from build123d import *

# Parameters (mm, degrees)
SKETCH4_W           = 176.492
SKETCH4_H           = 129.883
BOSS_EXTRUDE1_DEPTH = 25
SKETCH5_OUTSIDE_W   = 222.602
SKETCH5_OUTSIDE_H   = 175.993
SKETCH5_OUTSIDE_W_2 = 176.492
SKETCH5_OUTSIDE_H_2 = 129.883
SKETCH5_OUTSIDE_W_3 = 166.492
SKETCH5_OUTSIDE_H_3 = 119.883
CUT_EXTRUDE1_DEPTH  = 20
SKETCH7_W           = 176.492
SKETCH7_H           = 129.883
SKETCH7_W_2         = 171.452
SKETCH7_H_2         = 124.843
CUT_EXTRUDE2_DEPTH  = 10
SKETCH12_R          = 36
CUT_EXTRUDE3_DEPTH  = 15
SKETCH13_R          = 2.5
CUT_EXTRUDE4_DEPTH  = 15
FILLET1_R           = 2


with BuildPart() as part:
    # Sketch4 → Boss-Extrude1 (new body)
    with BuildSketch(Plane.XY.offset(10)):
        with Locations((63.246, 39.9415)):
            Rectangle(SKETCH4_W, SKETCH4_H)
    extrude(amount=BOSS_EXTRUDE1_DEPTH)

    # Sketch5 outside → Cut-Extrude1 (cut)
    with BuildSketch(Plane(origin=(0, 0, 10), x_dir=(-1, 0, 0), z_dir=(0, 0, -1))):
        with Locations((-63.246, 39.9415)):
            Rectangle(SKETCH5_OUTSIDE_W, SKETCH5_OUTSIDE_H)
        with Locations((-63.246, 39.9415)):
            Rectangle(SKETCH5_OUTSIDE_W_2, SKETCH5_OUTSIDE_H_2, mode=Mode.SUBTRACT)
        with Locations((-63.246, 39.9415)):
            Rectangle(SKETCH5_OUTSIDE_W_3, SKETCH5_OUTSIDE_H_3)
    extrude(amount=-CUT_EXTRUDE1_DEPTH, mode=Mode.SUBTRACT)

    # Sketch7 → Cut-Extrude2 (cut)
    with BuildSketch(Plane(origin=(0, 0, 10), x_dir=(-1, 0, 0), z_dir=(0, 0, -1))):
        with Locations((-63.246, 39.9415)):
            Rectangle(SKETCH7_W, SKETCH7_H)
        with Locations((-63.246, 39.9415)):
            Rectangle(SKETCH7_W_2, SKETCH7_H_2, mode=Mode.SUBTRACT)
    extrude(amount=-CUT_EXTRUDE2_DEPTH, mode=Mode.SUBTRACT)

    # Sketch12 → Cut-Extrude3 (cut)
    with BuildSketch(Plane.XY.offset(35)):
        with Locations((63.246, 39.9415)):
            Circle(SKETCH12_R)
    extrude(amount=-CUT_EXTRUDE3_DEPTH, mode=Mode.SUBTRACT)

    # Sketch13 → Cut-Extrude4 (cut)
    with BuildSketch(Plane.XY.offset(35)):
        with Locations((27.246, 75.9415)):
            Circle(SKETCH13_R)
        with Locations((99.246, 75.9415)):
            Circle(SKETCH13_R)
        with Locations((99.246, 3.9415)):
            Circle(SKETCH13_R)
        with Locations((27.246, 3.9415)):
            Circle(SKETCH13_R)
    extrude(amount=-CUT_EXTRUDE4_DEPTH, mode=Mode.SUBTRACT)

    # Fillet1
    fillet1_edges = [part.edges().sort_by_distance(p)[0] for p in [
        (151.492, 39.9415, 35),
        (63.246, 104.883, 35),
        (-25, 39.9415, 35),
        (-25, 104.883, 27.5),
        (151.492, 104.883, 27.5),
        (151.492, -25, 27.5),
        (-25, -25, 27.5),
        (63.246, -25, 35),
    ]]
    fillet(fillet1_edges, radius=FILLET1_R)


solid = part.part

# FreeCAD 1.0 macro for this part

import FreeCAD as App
import Part
import Sketcher
from FreeCAD import Vector


def edges_at(feature, points):
    """Names of the edges that pass closest to the given points."""
    edges = feature.Shape.Edges
    near = lambda p: min(range(len(edges)), key=lambda i: edges[i].distToShape(Part.Vertex(*p))[0])
    return sorted({f"Edge{near(p) + 1}" for p in points})


def add_polygon(sketch, points):
    """Adds a closed chain of lines whose ends are joined by coincident constraints."""
    first, n = sketch.GeometryCount, len(points)
    for a, b in zip(points, points[1:] + points[:1]):
        sketch.addGeometry(Part.LineSegment(App.Vector(*a, 0), App.Vector(*b, 0)), False)
    for i in range(n):
        sketch.addConstraint(Sketcher.Constraint("Coincident", first + i, 2, first + (i + 1) % n, 1))

doc = App.newDocument("Part")
body = doc.addObject("PartDesign::Body", "Body")

sketch1 = body.newObject("Sketcher::SketchObject", "Sketch")
sketch1.AttachmentSupport = (doc.getObject("XY_Plane"), [""])
sketch1.MapMode = "FlatFace"
sketch1.AttachmentOffset = App.Placement(Vector(0, 0, 10), App.Rotation())
add_polygon(sketch1, [(-25, 105), (-25, -25), (151, -25), (151, 105)])
sketch1.addConstraint([
    Sketcher.Constraint("Vertical", 0),
    Sketcher.Constraint("Horizontal", 1),
    Sketcher.Constraint("Vertical", 2),
    Sketcher.Constraint("Horizontal", 3),
    Sketcher.Constraint("DistanceX", 0, 2, -1, 1, 25.0),
    Sketcher.Constraint("DistanceY", 0, 2, -1, 1, 25.0),
    Sketcher.Constraint("DistanceX", 1, 1, 1, 2, 176.492),
    Sketcher.Constraint("DistanceY", 0, 2, 0, 1, 129.883),
])
pad1 = body.newObject("PartDesign::Pad", "Pad")
pad1.Profile = sketch1
pad1.Length = 25

sketch2 = body.newObject("Sketcher::SketchObject", "Sketch001")
sketch2.AttachmentSupport = (doc.getObject("XY_Plane"), [""])
sketch2.MapMode = "FlatFace"
sketch2.AttachmentOffset = App.Placement(Vector(0, 0, 10), App.Rotation())
add_polygon(sketch2, [(175, 128), (175, -48), (-48, -48), (-48, 128)])
add_polygon(sketch2, [(-25, -25), (151, -25), (151, 105), (-25, 105)])
add_polygon(sketch2, [(146, 100), (146, -20), (-20, -20), (-20, 100)])
sketch2.addConstraint([
    Sketcher.Constraint("Vertical", 0),
    Sketcher.Constraint("Horizontal", 1),
    Sketcher.Constraint("Vertical", 2),
    Sketcher.Constraint("Horizontal", 3),
    Sketcher.Constraint("Horizontal", 4),
    Sketcher.Constraint("Vertical", 5),
    Sketcher.Constraint("Horizontal", 6),
    Sketcher.Constraint("Vertical", 7),
    Sketcher.Constraint("Vertical", 8),
    Sketcher.Constraint("Horizontal", 9),
    Sketcher.Constraint("Vertical", 10),
    Sketcher.Constraint("Horizontal", 11),
    Sketcher.Constraint("DistanceY", 4, 2, -1, 1, 25.0),
    Sketcher.Constraint("DistanceX", 6, 2, -1, 1, 25.0),
    Sketcher.Constraint("DistanceY", 8, 2, -1, 1, 20.0),
    Sketcher.Constraint("DistanceX", 9, 2, -1, 1, 20.0),
    Sketcher.Constraint("DistanceX", 8, 2, 4, 2, 5.0),
    Sketcher.Constraint("DistanceY", 10, 2, 6, 2, 5.0),
    Sketcher.Constraint("DistanceX", 1, 2, 1, 1, 222.602),
    Sketcher.Constraint("DistanceX", 4, 1, 4, 2, 176.492),
    Sketcher.Constraint("DistanceY", 0, 2, 0, 1, 175.993),
    Sketcher.Constraint("DistanceY", 5, 1, 5, 2, 129.883),
    Sketcher.Constraint("DistanceX", -1, 1, 0, 2, 174.547),
    Sketcher.Constraint("DistanceY", 0, 2, -1, 1, 48.055),
])
pocket1 = body.newObject("PartDesign::Pocket", "Pocket")
pocket1.Profile = sketch2
pocket1.Length = 20
pocket1.Reversed = True

sketch3 = body.newObject("Sketcher::SketchObject", "Sketch002")
sketch3.AttachmentSupport = (doc.getObject("XY_Plane"), [""])
sketch3.MapMode = "FlatFace"
sketch3.AttachmentOffset = App.Placement(Vector(0, 0, 10), App.Rotation())
add_polygon(sketch3, [(151, 105), (151, -25), (-25, -25), (-25, 105)])
add_polygon(sketch3, [(-22, -22), (149, -22), (149, 102), (-22, 102)])
sketch3.addConstraint([
    Sketcher.Constraint("Vertical", 0),
    Sketcher.Constraint("Horizontal", 1),
    Sketcher.Constraint("Vertical", 2),
    Sketcher.Constraint("Horizontal", 3),
    Sketcher.Constraint("Horizontal", 4),
    Sketcher.Constraint("Vertical", 5),
    Sketcher.Constraint("Horizontal", 6),
    Sketcher.Constraint("Vertical", 7),
    Sketcher.Constraint("DistanceY", 0, 2, -1, 1, 25.0),
    Sketcher.Constraint("DistanceX", 1, 2, -1, 1, 25.0),
    Sketcher.Constraint("DistanceX", 1, 2, 1, 1, 176.492),
    Sketcher.Constraint("DistanceX", 4, 1, 4, 2, 171.452),
    Sketcher.Constraint("DistanceY", 0, 2, 0, 1, 129.883),
    Sketcher.Constraint("DistanceY", 5, 1, 5, 2, 124.843),
    Sketcher.Constraint("DistanceY", 4, 2, -1, 1, 22.48),
    Sketcher.Constraint("DistanceX", 6, 2, -1, 1, 22.48),
])
pocket2 = body.newObject("PartDesign::Pocket", "Pocket001")
pocket2.Profile = sketch3
pocket2.Length = 10
pocket2.Reversed = True

sketch4 = body.newObject("Sketcher::SketchObject", "Sketch003")
sketch4.AttachmentSupport = (doc.getObject("XY_Plane"), [""])
sketch4.MapMode = "FlatFace"
sketch4.AttachmentOffset = App.Placement(Vector(0, 0, 35), App.Rotation())
sketch4.addGeometry(Part.Circle(Vector(63, 40, 0), Vector(0, 0, 1), 36), False)
sketch4.addConstraint([
    Sketcher.Constraint("Diameter", 0, 72.0),
    Sketcher.Constraint("DistanceX", -1, 1, 0, 3, 63.246),
    Sketcher.Constraint("DistanceY", -1, 1, 0, 3, 39.9415),
])
pocket3 = body.newObject("PartDesign::Pocket", "Pocket002")
pocket3.Profile = sketch4
pocket3.Length = 15

sketch5 = body.newObject("Sketcher::SketchObject", "Sketch004")
sketch5.AttachmentSupport = (doc.getObject("XY_Plane"), [""])
sketch5.MapMode = "FlatFace"
sketch5.AttachmentOffset = App.Placement(Vector(0, 0, 35), App.Rotation())
sketch5.addGeometry([
    Part.Circle(Vector(27.2, 75.9, 0), Vector(0, 0, 1), 2.5),
    Part.Circle(Vector(99.2, 75.9, 0), Vector(0, 0, 1), 2.5),
    Part.Circle(Vector(99.2, 3.9, 0), Vector(0, 0, 1), 2.5),
    Part.Circle(Vector(27.2, 3.9, 0), Vector(0, 0, 1), 2.5),
], False)
sketch5.addConstraint([
    Sketcher.Constraint("Equal", 0, 1),
    Sketcher.Constraint("Equal", 1, 2),
    Sketcher.Constraint("Equal", 2, 3),
    Sketcher.Constraint("Horizontal", 0, 3, 1, 3),
    Sketcher.Constraint("Horizontal", 2, 3, 3, 3),
    Sketcher.Constraint("Vertical", 1, 3, 2, 3),
    Sketcher.Constraint("Vertical", 0, 3, 3, 3),
    Sketcher.Constraint("Diameter", 0, 5.0),
    Sketcher.Constraint("DistanceX", 0, 3, 1, 3, 72.0),
    Sketcher.Constraint("DistanceY", 2, 3, 1, 3, 72.0),
    Sketcher.Constraint("DistanceX", -1, 1, 0, 3, 27.246),
    Sketcher.Constraint("DistanceY", -1, 1, 0, 3, 75.9415),
])
pocket4 = body.newObject("PartDesign::Pocket", "Pocket003")
pocket4.Profile = sketch5
pocket4.Length = 15
doc.recompute()

fillet = body.newObject("PartDesign::Fillet", "Fillet")
fillet.Base = (pocket4, edges_at(pocket4, [
    (151.492, 39.941, 35),
    (63.246, 104.883, 35),
    (-25, 39.941, 35),
    (-25, 104.883, 27.5),
    (151.492, 104.883, 27.5),
    (151.492, -25, 27.5),
    (-25, -25, 27.5),
    (63.246, -25, 35),
]))
fillet.Radius = 2

doc.recompute()
